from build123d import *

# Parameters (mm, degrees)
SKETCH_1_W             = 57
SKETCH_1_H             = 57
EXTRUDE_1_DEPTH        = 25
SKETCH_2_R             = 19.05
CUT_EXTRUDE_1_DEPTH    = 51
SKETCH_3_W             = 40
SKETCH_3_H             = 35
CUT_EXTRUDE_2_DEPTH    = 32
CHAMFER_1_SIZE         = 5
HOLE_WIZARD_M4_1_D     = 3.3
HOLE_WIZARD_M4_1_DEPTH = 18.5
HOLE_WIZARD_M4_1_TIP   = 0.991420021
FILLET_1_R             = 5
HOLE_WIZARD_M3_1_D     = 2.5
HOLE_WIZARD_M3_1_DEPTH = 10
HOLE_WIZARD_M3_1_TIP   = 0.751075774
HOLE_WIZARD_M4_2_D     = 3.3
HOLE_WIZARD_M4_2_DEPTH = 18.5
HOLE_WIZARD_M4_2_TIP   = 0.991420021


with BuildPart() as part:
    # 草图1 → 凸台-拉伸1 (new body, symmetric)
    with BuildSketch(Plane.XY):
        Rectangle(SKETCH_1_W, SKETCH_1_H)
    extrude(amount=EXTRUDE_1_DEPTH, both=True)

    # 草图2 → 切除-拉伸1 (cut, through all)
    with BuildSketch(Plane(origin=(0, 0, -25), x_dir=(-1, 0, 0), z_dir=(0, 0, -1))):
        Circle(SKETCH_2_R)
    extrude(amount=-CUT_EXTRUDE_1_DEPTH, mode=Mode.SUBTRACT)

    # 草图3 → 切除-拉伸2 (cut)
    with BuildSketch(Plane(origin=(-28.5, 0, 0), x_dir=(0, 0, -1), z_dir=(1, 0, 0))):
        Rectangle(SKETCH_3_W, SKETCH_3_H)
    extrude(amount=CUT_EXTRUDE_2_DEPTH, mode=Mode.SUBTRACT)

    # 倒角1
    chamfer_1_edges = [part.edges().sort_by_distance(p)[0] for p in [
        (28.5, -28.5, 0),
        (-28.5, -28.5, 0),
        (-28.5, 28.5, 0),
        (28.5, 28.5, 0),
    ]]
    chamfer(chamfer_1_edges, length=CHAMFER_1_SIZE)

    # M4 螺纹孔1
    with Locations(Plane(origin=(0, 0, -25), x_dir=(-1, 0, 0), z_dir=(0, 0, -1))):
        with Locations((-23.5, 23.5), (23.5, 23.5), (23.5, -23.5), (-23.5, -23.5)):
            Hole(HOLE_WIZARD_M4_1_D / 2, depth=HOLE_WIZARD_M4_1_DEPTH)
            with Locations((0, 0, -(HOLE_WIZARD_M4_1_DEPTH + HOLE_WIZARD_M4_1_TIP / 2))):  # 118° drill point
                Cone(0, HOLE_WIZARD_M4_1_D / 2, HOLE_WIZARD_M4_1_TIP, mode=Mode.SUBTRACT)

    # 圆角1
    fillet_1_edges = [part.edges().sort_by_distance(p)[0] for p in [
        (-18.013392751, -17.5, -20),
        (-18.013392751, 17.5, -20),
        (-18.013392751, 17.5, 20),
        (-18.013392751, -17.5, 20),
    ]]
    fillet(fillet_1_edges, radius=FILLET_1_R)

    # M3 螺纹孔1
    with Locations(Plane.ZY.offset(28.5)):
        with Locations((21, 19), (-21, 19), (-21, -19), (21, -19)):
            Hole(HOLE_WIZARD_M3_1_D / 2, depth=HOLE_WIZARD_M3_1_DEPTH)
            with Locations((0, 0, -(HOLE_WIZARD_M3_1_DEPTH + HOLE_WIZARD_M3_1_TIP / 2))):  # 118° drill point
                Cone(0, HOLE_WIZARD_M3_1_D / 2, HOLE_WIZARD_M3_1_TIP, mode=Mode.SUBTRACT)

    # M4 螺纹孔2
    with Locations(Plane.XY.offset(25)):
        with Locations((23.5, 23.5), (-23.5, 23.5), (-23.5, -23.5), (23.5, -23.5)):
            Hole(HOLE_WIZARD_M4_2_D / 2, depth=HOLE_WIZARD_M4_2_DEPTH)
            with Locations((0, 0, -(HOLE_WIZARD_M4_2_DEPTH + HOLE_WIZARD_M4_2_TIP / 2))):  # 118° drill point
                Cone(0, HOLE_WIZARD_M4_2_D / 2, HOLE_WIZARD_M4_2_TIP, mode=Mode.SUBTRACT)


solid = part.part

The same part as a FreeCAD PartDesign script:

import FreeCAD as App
import Part
import Sketcher


def edges_at(feature, points):
    """Names of the edges that pass closest to the given points."""
    edges = feature.Shape.Edges
    near = lambda p: min(range(len(edges)), key=lambda i: edges[i].distToShape(Part.Vertex(*p))[0])
    return sorted({f"Edge{near(p) + 1}" for p in points})


def add_polygon(sketch, points):
    """Adds a closed chain of lines whose ends are joined by coincident constraints."""
    first, n = sketch.GeometryCount, len(points)
    for a, b in zip(points, points[1:] + points[:1]):
        sketch.addGeometry(Part.LineSegment(App.Vector(*a, 0), App.Vector(*b, 0)), False)
    for i in range(n):
        sketch.addConstraint(Sketcher.Constraint("Coincident", first + i, 2, first + (i + 1) % n, 1))

doc = App.newDocument("Part")
body = doc.addObject("PartDesign::Body", "Body")

# Sketch on XY plane
sketch1 = doc.addObject("Sketcher::SketchObject", "Sketch")
body.addObject(sketch1)
sketch1.AttachmentSupport = (doc.XY_Plane, [""])
sketch1.MapMode = "FlatFace"
add_polygon(sketch1, [(-28, 28), (-28, -28), (28, -28), (28, 28)])  # lines 0-3
sketch1.addConstraint(Sketcher.Constraint("Vertical", 0))
sketch1.addConstraint(Sketcher.Constraint("Horizontal", 1))
sketch1.addConstraint(Sketcher.Constraint("Vertical", 2))
sketch1.addConstraint(Sketcher.Constraint("Horizontal", 3))
sketch1.addConstraint(Sketcher.Constraint("Symmetric", 0, 2, 2, 2, -1, 1))
sketch1.addConstraint(Sketcher.Constraint("Equal", 3, 0))
sketch1.addConstraint(Sketcher.Constraint("DistanceX", 1, 1, 1, 2, 57.0))
pad1 = doc.addObject("PartDesign::Pad", "Pad")
body.addObject(pad1)
pad1.Profile = sketch1
pad1.Length = 50
pad1.Midplane = True

# Sketch on XY plane
sketch2 = doc.addObject("Sketcher::SketchObject", "Sketch001")
body.addObject(sketch2)
sketch2.AttachmentSupport = (doc.XY_Plane, [""])
sketch2.MapMode = "FlatFace"
sketch2.AttachmentOffset = App.Placement(App.Vector(0, 0, -25), App.Rotation())
sketch2.addGeometry(Part.Circle(App.Vector(0, 0, 0), App.Vector(0, 0, 1), 19), False)
sketch2.addConstraint(Sketcher.Constraint("Coincident", 0, 3, -1, 1))
sketch2.addConstraint(Sketcher.Constraint("Diameter", 0, 38.1))
pocket1 = doc.addObject("PartDesign::Pocket", "Pocket")
body.addObject(pocket1)
pocket1.Profile = sketch2
pocket1.Type = "ThroughAll"
pocket1.Reversed = True

# Sketch on YZ plane
sketch3 = doc.addObject("Sketcher::SketchObject", "Sketch002")
body.addObject(sketch3)
sketch3.AttachmentSupport = (doc.YZ_Plane, [""])
sketch3.MapMode = "FlatFace"
sketch3.AttachmentOffset = App.Placement(App.Vector(0, 0, -28.5), App.Rotation())
add_polygon(sketch3, [(18, 20), (-18, 20), (-18, -20), (18, -20)])  # lines 0-3
sketch3.addConstraint(Sketcher.Constraint("Horizontal", 0))
sketch3.addConstraint(Sketcher.Constraint("Vertical", 1))
sketch3.addConstraint(Sketcher.Constraint("Horizontal", 2))
sketch3.addConstraint(Sketcher.Constraint("Vertical", 3))
sketch3.addConstraint(Sketcher.Constraint("Symmetric", 0, 2, 2, 2, -1, 1))
sketch3.addConstraint(Sketcher.Constraint("DistanceX", 0, 2, 0, 1, 35.0))
sketch3.addConstraint(Sketcher.Constraint("DistanceY", 1, 2, 1, 1, 40.0))
pocket2 = doc.addObject("PartDesign::Pocket", "Pocket001")
body.addObject(pocket2)
pocket2.Profile = sketch3
pocket2.Length = 32
pocket2.Reversed = True
doc.recompute()

chamfer = doc.addObject("PartDesign::Chamfer", "Chamfer")
body.addObject(chamfer)
chamfer.Base = (pocket2, edges_at(pocket2, [
    (28.5, -28.5, 0),
    (-28.5, -28.5, 0),
    (-28.5, 28.5, 0),
    (28.5, 28.5, 0),
]))
chamfer.Size = 5

# Sketch on XY plane
sketch4 = doc.addObject("Sketcher::SketchObject", "Sketch003")
body.addObject(sketch4)
sketch4.AttachmentSupport = (doc.XY_Plane, [""])
sketch4.MapMode = "FlatFace"
sketch4.AttachmentOffset = App.Placement(App.Vector(0, 0, -25), App.Rotation())
sketch4.addGeometry(Part.Circle(App.Vector(23.5, 23.5, 0), App.Vector(0, 0, 1), 1.6), False)
sketch4.addGeometry(Part.Circle(App.Vector(-23.5, 23.5, 0), App.Vector(0, 0, 1), 1.6), False)
sketch4.addGeometry(Part.Circle(App.Vector(-23.5, -23.5, 0), App.Vector(0, 0, 1), 1.6), False)
sketch4.addGeometry(Part.Circle(App.Vector(23.5, -23.5, 0), App.Vector(0, 0, 1), 1.6), False)
sketch4.addConstraint(Sketcher.Constraint("Equal", 0, 1))
sketch4.addConstraint(Sketcher.Constraint("Equal", 1, 2))
sketch4.addConstraint(Sketcher.Constraint("Equal", 2, 3))
sketch4.addConstraint(Sketcher.Constraint("Symmetric", 0, 3, 2, 3, -1, 1))
sketch4.addConstraint(Sketcher.Constraint("Symmetric", 1, 3, 3, 3, -1, 1))
sketch4.addConstraint(Sketcher.Constraint("Symmetric", 0, 3, 1, 3, -2))
sketch4.addConstraint(Sketcher.Constraint("Diameter", 0, 3.3))
sketch4.addConstraint(Sketcher.Constraint("DistanceX", 1, 3, 0, 3, 47.0))
sketch4.addConstraint(Sketcher.Constraint("DistanceY", 2, 3, 1, 3, 47.0))
doc.recompute()
hole = doc.addObject("PartDesign::Hole", "Hole")
body.addObject(hole)
hole.Profile = sketch4
hole.ThreadType = "None"
hole.Diameter = 3.3
hole.DepthType = "Dimension"
hole.Depth = 18.5
hole.DrillPoint = "Angled"
hole.DrillPointAngle = 118
hole.Reversed = True
doc.recompute()

fillet = doc.addObject("PartDesign::Fillet", "Fillet")
body.addObject(fillet)
fillet.Base = (hole, edges_at(hole, [
    (-18.013, -17.5, -20),
    (-18.013, 17.5, -20),
    (-18.013, 17.5, 20),
    (-18.013, -17.5, 20),
]))
fillet.Radius = 5

# Sketch on YZ plane
sketch5 = doc.addObject("Sketcher::SketchObject", "Sketch004")
body.addObject(sketch5)
sketch5.AttachmentSupport = (doc.YZ_Plane, [""])
sketch5.MapMode = "FlatFace"
sketch5.AttachmentOffset = App.Placement(App.Vector(0, 0, -28.5), App.Rotation())
sketch5.addGeometry(Part.Circle(App.Vector(19, 21, 0), App.Vector(0, 0, 1), 1.2), False)
sketch5.addGeometry(Part.Circle(App.Vector(19, -21, 0), App.Vector(0, 0, 1), 1.2), False)
sketch5.addGeometry(Part.Circle(App.Vector(-19, -21, 0), App.Vector(0, 0, 1), 1.2), False)
sketch5.addGeometry(Part.Circle(App.Vector(-19, 21, 0), App.Vector(0, 0, 1), 1.2), False)
sketch5.addConstraint(Sketcher.Constraint("Equal", 0, 1))
sketch5.addConstraint(Sketcher.Constraint("Equal", 1, 2))
sketch5.addConstraint(Sketcher.Constraint("Equal", 2, 3))
sketch5.addConstraint(Sketcher.Constraint("Symmetric", 0, 3, 2, 3, -1, 1))
sketch5.addConstraint(Sketcher.Constraint("Symmetric", 1, 3, 3, 3, -1, 1))
sketch5.addConstraint(Sketcher.Constraint("Symmetric", 1, 3, 2, 3, -2))
sketch5.addConstraint(Sketcher.Constraint("Diameter", 0, 2.5))
sketch5.addConstraint(Sketcher.Constraint("DistanceX", -1, 1, 0, 3, 19.0))
sketch5.addConstraint(Sketcher.Constraint("DistanceY", -1, 1, 0, 3, 21.0))
doc.recompute()
hole2 = doc.addObject("PartDesign::Hole", "Hole001")
body.addObject(hole2)
hole2.Profile = sketch5
hole2.ThreadType = "None"
hole2.Diameter = 2.5
hole2.DepthType = "Dimension"
hole2.Depth = 10
hole2.DrillPoint = "Angled"
hole2.DrillPointAngle = 118
hole2.Reversed = True

# Sketch on XY plane
sketch6 = doc.addObject("Sketcher::SketchObject", "Sketch005")
body.addObject(sketch6)
sketch6.AttachmentSupport = (doc.XY_Plane, [""])
sketch6.MapMode = "FlatFace"
sketch6.AttachmentOffset = App.Placement(App.Vector(0, 0, 25), App.Rotation())
sketch6.addGeometry(Part.Circle(App.Vector(23.5, 23.5, 0), App.Vector(0, 0, 1), 1.6), False)
sketch6.addGeometry(Part.Circle(App.Vector(-23.5, 23.5, 0), App.Vector(0, 0, 1), 1.6), False)
sketch6.addGeometry(Part.Circle(App.Vector(-23.5, -23.5, 0), App.Vector(0, 0, 1), 1.6), False)
sketch6.addGeometry(Part.Circle(App.Vector(23.5, -23.5, 0), App.Vector(0, 0, 1), 1.6), False)
sketch6.addConstraint(Sketcher.Constraint("Equal", 0, 1))
sketch6.addConstraint(Sketcher.Constraint("Equal", 1, 2))
sketch6.addConstraint(Sketcher.Constraint("Equal", 2, 3))
sketch6.addConstraint(Sketcher.Constraint("Symmetric", 0, 3, 2, 3, -1, 1))
sketch6.addConstraint(Sketcher.Constraint("Symmetric", 1, 3, 3, 3, -1, 1))
sketch6.addConstraint(Sketcher.Constraint("Symmetric", 0, 3, 1, 3, -2))
sketch6.addConstraint(Sketcher.Constraint("Diameter", 0, 3.3))
sketch6.addConstraint(Sketcher.Constraint("DistanceX", 1, 3, 0, 3, 47.0))
sketch6.addConstraint(Sketcher.Constraint("DistanceY", 2, 3, 1, 3, 47.0))
doc.recompute()
hole3 = doc.addObject("PartDesign::Hole", "Hole002")
body.addObject(hole3)
hole3.Profile = sketch6
hole3.ThreadType = "None"
hole3.Diameter = 3.3
hole3.DepthType = "Dimension"
hole3.Depth = 18.5
hole3.DrillPoint = "Angled"
hole3.DrillPointAngle = 118

doc.recompute()
